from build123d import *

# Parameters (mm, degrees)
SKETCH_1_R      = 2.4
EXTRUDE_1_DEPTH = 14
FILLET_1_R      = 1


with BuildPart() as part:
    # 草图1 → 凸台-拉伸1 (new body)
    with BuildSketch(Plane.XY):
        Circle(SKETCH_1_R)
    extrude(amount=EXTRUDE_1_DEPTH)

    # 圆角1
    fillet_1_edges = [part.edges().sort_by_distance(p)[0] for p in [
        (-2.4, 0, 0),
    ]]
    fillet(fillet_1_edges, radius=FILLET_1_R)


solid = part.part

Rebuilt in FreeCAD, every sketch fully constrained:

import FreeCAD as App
import Part
import Sketcher

V = App.Vector
Q = App.Units.Quantity


def edges_at(feature, points):
    """Names of the edges that pass closest to the given points."""
    edges = feature.Shape.Edges
    near = lambda p: min(range(len(edges)), key=lambda i: edges[i].distToShape(Part.Vertex(*p))[0])
    return sorted({f"Edge{near(p) + 1}" for p in points})

doc = App.newDocument("Part")
body = doc.addObject("PartDesign::Body", "Body")

# Sketch on XY plane
sketch1 = body.newObject("Sketcher::SketchObject", "Sketch")
sketch1.AttachmentSupport = (doc.getObject("XY_Plane"), [""])
sketch1.MapMode = "FlatFace"
sketch1.addGeometry(Part.Circle(V(0, 0, 0), V(0, 0, 1), 2.4), False)
sketch1.addConstraint([
    Sketcher.Constraint("Coincident", 0, 3, -1, 1),
    Sketcher.Constraint("Diameter", 0, Q("4.8 mm")),
])
pad1 = body.newObject("PartDesign::Pad", "Pad")
pad1.Profile = sketch1
pad1.Length = 14
doc.recompute()

fillet = body.newObject("PartDesign::Fillet", "Fillet")
fillet.Base = (pad1, edges_at(pad1, [(-2.4, 0, 0)]))
fillet.Radius = 1

doc.recompute()
